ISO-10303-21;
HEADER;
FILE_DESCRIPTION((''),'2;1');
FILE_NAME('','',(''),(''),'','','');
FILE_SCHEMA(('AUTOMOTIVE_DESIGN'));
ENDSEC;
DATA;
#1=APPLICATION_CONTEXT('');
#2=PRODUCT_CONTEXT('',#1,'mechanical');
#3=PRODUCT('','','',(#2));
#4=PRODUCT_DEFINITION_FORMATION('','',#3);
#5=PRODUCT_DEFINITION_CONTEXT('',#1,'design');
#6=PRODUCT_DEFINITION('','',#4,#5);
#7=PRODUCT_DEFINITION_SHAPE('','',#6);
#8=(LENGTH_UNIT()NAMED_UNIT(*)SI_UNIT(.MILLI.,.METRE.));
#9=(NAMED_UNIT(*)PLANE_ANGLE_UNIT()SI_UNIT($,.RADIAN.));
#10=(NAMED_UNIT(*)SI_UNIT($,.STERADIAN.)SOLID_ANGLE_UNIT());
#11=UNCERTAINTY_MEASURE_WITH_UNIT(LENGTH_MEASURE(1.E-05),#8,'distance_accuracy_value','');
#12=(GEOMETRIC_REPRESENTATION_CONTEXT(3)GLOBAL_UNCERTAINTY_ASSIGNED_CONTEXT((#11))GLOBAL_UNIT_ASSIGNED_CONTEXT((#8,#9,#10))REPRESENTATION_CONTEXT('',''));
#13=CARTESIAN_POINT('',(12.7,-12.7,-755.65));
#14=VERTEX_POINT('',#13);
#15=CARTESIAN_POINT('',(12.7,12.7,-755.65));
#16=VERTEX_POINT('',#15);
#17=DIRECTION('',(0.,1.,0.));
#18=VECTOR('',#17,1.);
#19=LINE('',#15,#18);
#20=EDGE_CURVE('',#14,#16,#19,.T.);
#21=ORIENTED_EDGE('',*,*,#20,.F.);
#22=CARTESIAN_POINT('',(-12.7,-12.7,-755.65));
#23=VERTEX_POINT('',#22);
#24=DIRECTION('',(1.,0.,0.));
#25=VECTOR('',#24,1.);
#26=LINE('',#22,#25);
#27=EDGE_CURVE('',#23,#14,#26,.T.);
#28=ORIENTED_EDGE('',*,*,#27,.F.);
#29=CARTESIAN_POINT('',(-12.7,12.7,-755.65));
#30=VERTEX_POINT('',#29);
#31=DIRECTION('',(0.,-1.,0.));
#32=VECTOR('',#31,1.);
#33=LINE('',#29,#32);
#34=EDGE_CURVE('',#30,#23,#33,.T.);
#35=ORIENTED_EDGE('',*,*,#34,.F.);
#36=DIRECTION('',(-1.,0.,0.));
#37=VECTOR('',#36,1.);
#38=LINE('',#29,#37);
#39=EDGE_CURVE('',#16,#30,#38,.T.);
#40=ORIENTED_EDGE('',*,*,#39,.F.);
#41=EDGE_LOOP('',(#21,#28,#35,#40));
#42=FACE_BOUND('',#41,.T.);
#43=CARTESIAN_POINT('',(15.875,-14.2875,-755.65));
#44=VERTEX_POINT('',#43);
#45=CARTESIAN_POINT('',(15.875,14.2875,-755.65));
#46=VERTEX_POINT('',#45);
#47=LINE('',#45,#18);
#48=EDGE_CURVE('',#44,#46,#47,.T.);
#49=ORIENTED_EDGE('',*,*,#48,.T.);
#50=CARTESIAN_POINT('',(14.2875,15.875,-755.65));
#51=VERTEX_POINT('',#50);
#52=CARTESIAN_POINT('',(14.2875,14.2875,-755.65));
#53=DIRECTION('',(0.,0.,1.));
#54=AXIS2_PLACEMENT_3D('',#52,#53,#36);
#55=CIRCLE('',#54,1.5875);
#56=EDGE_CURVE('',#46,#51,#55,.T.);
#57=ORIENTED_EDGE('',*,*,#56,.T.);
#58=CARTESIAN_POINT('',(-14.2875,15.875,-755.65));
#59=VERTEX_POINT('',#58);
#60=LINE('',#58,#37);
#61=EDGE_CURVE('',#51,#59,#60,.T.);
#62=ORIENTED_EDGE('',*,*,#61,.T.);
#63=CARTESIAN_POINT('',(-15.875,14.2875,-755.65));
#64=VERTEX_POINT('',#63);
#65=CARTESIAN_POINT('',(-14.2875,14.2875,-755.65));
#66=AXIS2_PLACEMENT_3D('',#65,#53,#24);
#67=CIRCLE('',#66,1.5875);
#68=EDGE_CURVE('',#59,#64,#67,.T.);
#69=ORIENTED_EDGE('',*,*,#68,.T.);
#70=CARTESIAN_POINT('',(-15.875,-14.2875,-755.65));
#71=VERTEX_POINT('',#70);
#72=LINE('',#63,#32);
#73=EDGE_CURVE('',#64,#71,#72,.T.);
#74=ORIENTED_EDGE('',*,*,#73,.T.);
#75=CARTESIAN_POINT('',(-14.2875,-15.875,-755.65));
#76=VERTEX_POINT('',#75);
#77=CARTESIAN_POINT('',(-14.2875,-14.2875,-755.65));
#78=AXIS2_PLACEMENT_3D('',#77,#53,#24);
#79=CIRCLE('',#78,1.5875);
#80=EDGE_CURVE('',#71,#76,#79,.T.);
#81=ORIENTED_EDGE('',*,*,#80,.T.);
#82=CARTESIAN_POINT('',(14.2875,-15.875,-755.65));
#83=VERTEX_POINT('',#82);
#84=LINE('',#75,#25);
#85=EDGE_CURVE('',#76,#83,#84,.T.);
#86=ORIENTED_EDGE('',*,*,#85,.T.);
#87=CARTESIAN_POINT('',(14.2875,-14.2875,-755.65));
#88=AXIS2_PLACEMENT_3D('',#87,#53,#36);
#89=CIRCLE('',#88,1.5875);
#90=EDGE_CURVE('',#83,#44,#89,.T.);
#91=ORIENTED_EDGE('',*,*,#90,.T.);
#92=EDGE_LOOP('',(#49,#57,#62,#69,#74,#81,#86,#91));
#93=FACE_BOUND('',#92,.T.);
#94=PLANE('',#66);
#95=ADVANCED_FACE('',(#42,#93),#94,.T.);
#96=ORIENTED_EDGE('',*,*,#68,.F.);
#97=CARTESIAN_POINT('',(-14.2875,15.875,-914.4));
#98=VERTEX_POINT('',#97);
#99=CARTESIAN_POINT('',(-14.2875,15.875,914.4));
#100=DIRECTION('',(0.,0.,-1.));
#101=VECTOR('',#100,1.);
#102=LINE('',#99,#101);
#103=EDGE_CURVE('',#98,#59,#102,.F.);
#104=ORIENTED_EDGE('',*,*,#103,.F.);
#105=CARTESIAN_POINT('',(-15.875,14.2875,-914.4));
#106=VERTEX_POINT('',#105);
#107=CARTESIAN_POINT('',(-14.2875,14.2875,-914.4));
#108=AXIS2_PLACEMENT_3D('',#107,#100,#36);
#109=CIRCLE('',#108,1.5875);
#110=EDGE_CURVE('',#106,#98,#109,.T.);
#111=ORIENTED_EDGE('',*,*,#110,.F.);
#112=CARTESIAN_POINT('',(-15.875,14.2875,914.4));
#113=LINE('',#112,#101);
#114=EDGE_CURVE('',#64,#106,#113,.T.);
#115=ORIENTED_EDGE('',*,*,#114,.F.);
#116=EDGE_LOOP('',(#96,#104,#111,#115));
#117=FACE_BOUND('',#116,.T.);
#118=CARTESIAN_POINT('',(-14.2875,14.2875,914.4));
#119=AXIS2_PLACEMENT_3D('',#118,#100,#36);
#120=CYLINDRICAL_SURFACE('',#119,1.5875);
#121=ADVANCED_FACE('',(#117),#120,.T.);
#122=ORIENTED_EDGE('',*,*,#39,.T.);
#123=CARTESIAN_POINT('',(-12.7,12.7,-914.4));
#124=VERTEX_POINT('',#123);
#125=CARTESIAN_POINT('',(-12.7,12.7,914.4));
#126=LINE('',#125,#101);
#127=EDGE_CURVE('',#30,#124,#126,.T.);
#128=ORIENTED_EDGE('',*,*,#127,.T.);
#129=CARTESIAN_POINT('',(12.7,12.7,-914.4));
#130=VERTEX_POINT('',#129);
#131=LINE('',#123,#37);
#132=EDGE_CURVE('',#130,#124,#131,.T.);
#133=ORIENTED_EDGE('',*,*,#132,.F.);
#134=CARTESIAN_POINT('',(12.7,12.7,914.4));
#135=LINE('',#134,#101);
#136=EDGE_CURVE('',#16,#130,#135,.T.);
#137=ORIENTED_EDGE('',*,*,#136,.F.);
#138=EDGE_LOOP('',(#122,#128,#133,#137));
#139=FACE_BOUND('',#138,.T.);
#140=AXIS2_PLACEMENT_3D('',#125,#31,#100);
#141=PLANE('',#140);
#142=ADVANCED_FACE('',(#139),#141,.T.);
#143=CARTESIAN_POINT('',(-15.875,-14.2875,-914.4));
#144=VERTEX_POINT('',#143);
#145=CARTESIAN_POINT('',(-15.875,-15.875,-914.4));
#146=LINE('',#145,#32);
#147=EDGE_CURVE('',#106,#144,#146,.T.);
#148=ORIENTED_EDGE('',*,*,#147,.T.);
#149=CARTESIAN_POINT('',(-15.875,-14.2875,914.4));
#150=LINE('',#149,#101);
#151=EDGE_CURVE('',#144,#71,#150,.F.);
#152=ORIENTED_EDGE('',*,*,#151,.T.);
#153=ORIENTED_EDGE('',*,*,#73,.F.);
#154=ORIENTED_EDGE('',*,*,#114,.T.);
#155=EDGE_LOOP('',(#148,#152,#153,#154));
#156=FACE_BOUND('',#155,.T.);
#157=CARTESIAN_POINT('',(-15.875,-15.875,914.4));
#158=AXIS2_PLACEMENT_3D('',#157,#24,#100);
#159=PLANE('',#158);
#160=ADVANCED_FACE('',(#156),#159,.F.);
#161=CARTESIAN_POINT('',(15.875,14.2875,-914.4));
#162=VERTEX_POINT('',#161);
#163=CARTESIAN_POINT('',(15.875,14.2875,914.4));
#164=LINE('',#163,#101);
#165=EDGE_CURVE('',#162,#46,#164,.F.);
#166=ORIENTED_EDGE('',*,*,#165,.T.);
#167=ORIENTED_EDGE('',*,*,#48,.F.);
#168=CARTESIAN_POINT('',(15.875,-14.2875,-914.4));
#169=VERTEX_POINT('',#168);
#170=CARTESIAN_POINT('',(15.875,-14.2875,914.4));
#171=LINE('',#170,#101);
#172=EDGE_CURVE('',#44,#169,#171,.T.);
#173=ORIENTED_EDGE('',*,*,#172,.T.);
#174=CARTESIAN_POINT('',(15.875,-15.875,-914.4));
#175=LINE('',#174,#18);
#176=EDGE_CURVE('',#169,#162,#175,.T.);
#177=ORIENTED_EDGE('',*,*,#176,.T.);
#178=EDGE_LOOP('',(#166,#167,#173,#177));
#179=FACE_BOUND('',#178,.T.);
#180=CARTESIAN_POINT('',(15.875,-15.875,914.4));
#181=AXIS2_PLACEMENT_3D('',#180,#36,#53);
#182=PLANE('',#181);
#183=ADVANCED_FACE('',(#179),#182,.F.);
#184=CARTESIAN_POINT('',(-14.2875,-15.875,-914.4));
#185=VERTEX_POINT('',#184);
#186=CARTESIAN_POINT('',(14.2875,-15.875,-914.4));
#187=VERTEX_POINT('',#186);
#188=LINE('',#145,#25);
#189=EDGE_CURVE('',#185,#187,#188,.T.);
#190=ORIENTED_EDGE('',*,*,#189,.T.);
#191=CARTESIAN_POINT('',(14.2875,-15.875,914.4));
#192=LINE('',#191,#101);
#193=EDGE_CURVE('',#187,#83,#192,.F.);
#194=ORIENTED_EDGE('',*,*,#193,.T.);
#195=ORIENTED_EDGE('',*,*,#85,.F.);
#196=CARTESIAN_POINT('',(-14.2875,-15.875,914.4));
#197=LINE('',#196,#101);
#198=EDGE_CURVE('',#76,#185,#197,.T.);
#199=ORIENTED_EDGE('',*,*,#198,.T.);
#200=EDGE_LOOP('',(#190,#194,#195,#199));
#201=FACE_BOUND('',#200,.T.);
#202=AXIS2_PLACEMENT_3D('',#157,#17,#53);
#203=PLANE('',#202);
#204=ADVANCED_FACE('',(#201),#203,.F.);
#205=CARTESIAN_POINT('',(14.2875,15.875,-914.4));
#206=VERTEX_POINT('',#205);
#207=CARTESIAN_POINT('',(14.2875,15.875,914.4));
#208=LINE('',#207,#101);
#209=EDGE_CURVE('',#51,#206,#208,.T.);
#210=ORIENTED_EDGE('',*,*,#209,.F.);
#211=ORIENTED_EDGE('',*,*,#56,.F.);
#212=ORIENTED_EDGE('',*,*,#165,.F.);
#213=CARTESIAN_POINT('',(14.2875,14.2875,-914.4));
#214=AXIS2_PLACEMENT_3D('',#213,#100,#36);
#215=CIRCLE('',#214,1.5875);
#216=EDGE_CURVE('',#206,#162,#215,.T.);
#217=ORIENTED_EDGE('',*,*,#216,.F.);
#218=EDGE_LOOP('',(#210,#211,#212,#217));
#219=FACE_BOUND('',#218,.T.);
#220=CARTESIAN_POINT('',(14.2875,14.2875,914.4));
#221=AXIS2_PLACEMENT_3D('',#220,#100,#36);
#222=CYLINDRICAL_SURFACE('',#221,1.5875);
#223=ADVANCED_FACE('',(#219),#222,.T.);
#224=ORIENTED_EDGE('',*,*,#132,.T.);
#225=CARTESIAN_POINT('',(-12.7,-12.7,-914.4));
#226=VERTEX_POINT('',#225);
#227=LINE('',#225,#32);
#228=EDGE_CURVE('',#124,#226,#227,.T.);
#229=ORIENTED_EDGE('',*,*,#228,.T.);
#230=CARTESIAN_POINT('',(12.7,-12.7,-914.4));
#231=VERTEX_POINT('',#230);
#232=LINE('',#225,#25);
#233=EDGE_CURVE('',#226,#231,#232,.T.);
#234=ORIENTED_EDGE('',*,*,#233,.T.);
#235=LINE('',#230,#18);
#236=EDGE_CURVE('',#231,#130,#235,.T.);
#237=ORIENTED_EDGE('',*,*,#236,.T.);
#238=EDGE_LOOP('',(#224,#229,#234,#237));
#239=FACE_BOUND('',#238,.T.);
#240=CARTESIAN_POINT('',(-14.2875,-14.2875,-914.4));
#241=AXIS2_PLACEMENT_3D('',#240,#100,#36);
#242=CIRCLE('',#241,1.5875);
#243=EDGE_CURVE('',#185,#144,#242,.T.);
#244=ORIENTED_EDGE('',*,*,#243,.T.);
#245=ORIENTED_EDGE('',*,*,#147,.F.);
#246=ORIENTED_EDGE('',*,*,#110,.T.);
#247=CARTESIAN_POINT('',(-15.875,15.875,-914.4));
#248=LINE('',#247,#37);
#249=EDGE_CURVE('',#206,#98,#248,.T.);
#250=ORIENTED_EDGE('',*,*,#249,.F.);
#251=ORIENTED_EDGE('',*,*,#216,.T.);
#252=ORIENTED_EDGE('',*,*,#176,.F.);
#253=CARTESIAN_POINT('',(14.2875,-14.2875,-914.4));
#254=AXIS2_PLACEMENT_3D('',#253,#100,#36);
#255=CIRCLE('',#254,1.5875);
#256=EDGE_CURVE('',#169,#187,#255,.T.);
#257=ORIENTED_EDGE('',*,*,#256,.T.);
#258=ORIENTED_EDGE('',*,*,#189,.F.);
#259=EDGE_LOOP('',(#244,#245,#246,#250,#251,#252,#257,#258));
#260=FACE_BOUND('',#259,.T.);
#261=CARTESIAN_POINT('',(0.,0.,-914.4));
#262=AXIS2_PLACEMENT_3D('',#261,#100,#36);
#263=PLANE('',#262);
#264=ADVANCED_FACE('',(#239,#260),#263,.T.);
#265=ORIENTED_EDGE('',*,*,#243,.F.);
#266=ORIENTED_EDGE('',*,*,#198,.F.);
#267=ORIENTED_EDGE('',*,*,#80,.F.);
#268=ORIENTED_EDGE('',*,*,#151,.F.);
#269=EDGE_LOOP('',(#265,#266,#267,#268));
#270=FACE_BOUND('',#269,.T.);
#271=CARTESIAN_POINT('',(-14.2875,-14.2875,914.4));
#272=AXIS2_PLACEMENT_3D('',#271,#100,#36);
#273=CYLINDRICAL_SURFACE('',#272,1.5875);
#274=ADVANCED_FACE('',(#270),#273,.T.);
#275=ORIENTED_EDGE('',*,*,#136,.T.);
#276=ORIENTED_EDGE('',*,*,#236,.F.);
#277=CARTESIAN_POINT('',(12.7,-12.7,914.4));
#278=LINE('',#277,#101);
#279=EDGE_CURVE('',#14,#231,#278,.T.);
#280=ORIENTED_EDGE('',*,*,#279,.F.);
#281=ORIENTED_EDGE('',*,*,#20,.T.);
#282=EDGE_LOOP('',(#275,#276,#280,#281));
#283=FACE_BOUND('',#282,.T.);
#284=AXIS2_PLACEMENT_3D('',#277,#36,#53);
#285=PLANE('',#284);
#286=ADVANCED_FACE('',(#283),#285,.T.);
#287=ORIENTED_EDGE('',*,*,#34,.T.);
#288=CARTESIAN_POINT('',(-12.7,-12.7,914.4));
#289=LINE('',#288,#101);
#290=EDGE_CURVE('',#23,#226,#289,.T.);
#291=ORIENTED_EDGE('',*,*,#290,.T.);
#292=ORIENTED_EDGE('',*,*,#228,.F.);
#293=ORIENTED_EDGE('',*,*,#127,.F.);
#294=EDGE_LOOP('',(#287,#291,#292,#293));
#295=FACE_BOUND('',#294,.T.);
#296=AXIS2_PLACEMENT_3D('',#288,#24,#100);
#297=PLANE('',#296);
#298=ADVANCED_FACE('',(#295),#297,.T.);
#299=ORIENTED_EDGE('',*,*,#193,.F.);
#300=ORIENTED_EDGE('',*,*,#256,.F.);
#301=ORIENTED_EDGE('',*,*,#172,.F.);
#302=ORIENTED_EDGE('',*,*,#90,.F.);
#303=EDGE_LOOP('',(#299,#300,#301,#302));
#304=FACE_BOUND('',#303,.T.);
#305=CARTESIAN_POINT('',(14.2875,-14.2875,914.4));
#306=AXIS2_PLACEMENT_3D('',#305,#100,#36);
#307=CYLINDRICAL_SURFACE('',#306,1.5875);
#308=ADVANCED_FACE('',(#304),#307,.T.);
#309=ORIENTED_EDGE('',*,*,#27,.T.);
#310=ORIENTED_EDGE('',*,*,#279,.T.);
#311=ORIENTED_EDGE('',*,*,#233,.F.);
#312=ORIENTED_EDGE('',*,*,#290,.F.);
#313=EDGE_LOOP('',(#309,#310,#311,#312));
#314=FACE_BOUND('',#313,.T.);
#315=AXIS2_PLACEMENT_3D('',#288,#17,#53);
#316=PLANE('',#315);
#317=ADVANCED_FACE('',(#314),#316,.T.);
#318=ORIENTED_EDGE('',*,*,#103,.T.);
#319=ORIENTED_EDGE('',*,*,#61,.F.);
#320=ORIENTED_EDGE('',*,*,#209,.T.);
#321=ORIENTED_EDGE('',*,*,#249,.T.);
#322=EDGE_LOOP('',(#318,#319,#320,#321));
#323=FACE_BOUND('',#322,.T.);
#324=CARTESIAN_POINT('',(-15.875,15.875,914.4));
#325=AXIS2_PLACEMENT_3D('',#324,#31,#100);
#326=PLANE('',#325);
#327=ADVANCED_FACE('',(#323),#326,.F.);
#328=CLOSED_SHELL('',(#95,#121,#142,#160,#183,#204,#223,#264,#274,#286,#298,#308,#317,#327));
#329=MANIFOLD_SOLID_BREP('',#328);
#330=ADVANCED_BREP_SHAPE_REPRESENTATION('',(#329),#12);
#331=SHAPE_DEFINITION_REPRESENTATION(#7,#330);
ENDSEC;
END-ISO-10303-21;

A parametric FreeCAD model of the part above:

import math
import FreeCAD as App
import Part
import Sketcher
Q = App.Units.Quantity


def edges_at(feature, points):
    """Names of the edges that pass closest to the given points."""
    edges = feature.Shape.Edges
    near = lambda p: min(range(len(edges)), key=lambda i: edges[i].distToShape(Part.Vertex(*p))[0])
    return sorted({f"Edge{near(p) + 1}" for p in points})

doc = App.newDocument("Part")
body = doc.addObject("PartDesign::Body", "Body")

sketch1 = body.newObject("Sketcher::SketchObject", "Sketch")
sketch1.AttachmentSupport = (doc.getObject("XY_Plane"), [""])
sketch1.MapMode = "FlatFace"
sketch1.addGeometry(Part.LineSegment(App.Vector(-16, 16, 0), App.Vector(-16, -16, 0)), False)
sketch1.addGeometry(Part.LineSegment(App.Vector(-16, -16, 0), App.Vector(16, -16, 0)), False)
sketch1.addGeometry(Part.LineSegment(App.Vector(16, -16, 0), App.Vector(16, 16, 0)), False)
sketch1.addGeometry(Part.LineSegment(App.Vector(16, 16, 0), App.Vector(-16, 16, 0)), False)
sketch1.addGeometry(Part.LineSegment(App.Vector(13, -13, 0), App.Vector(-13, -13, 0)), False)
sketch1.addGeometry(Part.LineSegment(App.Vector(-13, -13, 0), App.Vector(-13, 13, 0)), False)
sketch1.addGeometry(Part.LineSegment(App.Vector(-13, 13, 0), App.Vector(13, 13, 0)), False)
sketch1.addGeometry(Part.LineSegment(App.Vector(13, 13, 0), App.Vector(13, -13, 0)), False)
sketch1.addConstraint(Sketcher.Constraint("Coincident", 0, 2, 1, 1))
sketch1.addConstraint(Sketcher.Constraint("Coincident", 1, 2, 2, 1))
sketch1.addConstraint(Sketcher.Constraint("Coincident", 2, 2, 3, 1))
sketch1.addConstraint(Sketcher.Constraint("Coincident", 3, 2, 0, 1))
sketch1.addConstraint(Sketcher.Constraint("Coincident", 4, 2, 5, 1))
sketch1.addConstraint(Sketcher.Constraint("Coincident", 5, 2, 6, 1))
sketch1.addConstraint(Sketcher.Constraint("Coincident", 6, 2, 7, 1))
sketch1.addConstraint(Sketcher.Constraint("Coincident", 7, 2, 4, 1))
sketch1.addConstraint(Sketcher.Constraint("Vertical", 0))
sketch1.addConstraint(Sketcher.Constraint("Horizontal", 1))
sketch1.addConstraint(Sketcher.Constraint("Vertical", 2))
sketch1.addConstraint(Sketcher.Constraint("Horizontal", 3))
sketch1.addConstraint(Sketcher.Constraint("Horizontal", 4))
sketch1.addConstraint(Sketcher.Constraint("Vertical", 5))
sketch1.addConstraint(Sketcher.Constraint("Horizontal", 6))
sketch1.addConstraint(Sketcher.Constraint("Vertical", 7))
sketch1.addConstraint(Sketcher.Constraint("Symmetric", 0, 2, 2, 2, -1, 1))
sketch1.addConstraint(Sketcher.Constraint("Symmetric", 4, 2, 6, 2, -1, 1))
sketch1.addConstraint(Sketcher.Constraint("Equal", 3, 0))
sketch1.addConstraint(Sketcher.Constraint("Equal", 6, 5))
sketch1.addConstraint(Sketcher.Constraint("DistanceX", 4, 2, 4, 1, Q("1 in")))
sketch1.addConstraint(Sketcher.Constraint("DistanceX", 1, 1, 1, 2, Q("1.25 in")))
pad1 = body.newObject("PartDesign::Pad", "Pad")
pad1.Profile = sketch1
pad1.Type = "TwoLengths"
pad1.Length = Q("36 in")
pad1.Length2 = Q("36 in")
doc.recompute()

fillet = body.newObject("PartDesign::Fillet", "Fillet")
fillet.Base = (pad1, edges_at(pad1, [
    (15.875, -15.875, 0),
    (-15.875, -15.875, 0),
    (-15.875, 15.875, 0),
    (15.875, 15.875, 0),
]))
fillet.Radius = Q("0.0625 in")

sketch2 = body.newObject("Sketcher::SketchObject", "Sketch001")
sketch2.AttachmentSupport = (doc.getObject("XY_Plane"), [""])
sketch2.MapMode = "FlatFace"
sketch2.AttachmentOffset = App.Placement(App.Vector(0, 0, 36 * 25.4), App.Rotation())
sketch2.addGeometry(Part.LineSegment(App.Vector(14.3, 15.9, 0), App.Vector(-14.3, 15.9, 0)), False)
sketch2.addGeometry(Part.ArcOfCircle(Part.Circle(App.Vector(-14.3, 14.3, 0), App.Vector(0, 0, 1), 1.6), math.radians(90), math.radians(180)), False)
sketch2.addGeometry(Part.LineSegment(App.Vector(-15.9, 14.3, 0), App.Vector(-15.9, -14.3, 0)), False)
sketch2.addGeometry(Part.ArcOfCircle(Part.Circle(App.Vector(-14.3, -14.3, 0), App.Vector(0, 0, 1), 1.6), math.radians(180), math.radians(270)), False)
sketch2.addGeometry(Part.LineSegment(App.Vector(-14.3, -15.9, 0), App.Vector(14.3, -15.9, 0)), False)
sketch2.addGeometry(Part.ArcOfCircle(Part.Circle(App.Vector(14.3, -14.3, 0), App.Vector(0, 0, 1), 1.6), math.radians(-90), math.radians(0)), False)
sketch2.addGeometry(Part.LineSegment(App.Vector(15.9, -14.3, 0), App.Vector(15.9, 14.3, 0)), False)
sketch2.addGeometry(Part.ArcOfCircle(Part.Circle(App.Vector(14.3, 14.3, 0), App.Vector(0, 0, 1), 1.6), math.radians(0), math.radians(90)), False)
sketch2.addGeometry(Part.LineSegment(App.Vector(-12.7, -12.7, 0), App.Vector(-12.7, 12.7, 0)), False)
sketch2.addGeometry(Part.LineSegment(App.Vector(-12.7, 12.7, 0), App.Vector(12.7, 12.7, 0)), False)
sketch2.addGeometry(Part.LineSegment(App.Vector(12.7, 12.7, 0), App.Vector(12.7, -12.7, 0)), False)
sketch2.addGeometry(Part.LineSegment(App.Vector(12.7, -12.7, 0), App.Vector(-12.7, -12.7, 0)), False)
sketch2.addConstraint(Sketcher.Constraint("Tangent", 0, 2, 1, 1))
sketch2.addConstraint(Sketcher.Constraint("Tangent", 1, 2, 2, 1))
sketch2.addConstraint(Sketcher.Constraint("Tangent", 2, 2, 3, 1))
sketch2.addConstraint(Sketcher.Constraint("Tangent", 3, 2, 4, 1))
sketch2.addConstraint(Sketcher.Constraint("Tangent", 4, 2, 5, 1))
sketch2.addConstraint(Sketcher.Constraint("Tangent", 5, 2, 6, 1))
sketch2.addConstraint(Sketcher.Constraint("Tangent", 6, 2, 7, 1))
sketch2.addConstraint(Sketcher.Constraint("Tangent", 7, 2, 0, 1))
sketch2.addConstraint(Sketcher.Constraint("Coincident", 8, 2, 9, 1))
sketch2.addConstraint(Sketcher.Constraint("Coincident", 9, 2, 10, 1))
sketch2.addConstraint(Sketcher.Constraint("Coincident", 10, 2, 11, 1))
sketch2.addConstraint(Sketcher.Constraint("Coincident", 11, 2, 8, 1))
sketch2.addConstraint(Sketcher.Constraint("Horizontal", 0))
sketch2.addConstraint(Sketcher.Constraint("Vertical", 2))
sketch2.addConstraint(Sketcher.Constraint("Horizontal", 4))
sketch2.addConstraint(Sketcher.Constraint("Vertical", 6))
sketch2.addConstraint(Sketcher.Constraint("Vertical", 8))
sketch2.addConstraint(Sketcher.Constraint("Horizontal", 9))
sketch2.addConstraint(Sketcher.Constraint("Vertical", 10))
sketch2.addConstraint(Sketcher.Constraint("Horizontal", 11))
sketch2.addConstraint(Sketcher.Constraint("Equal", 1, 3))
sketch2.addConstraint(Sketcher.Constraint("Equal", 3, 5))
sketch2.addConstraint(Sketcher.Constraint("Equal", 5, 7))
sketch2.addConstraint(Sketcher.Constraint("Symmetric", 1, 3, 5, 3, -1, 1))
sketch2.addConstraint(Sketcher.Constraint("Symmetric", 8, 2, 10, 2, -1, 1))
sketch2.addConstraint(Sketcher.Constraint("Equal", 4, 2))
sketch2.addConstraint(Sketcher.Constraint("Equal", 11, 8))
sketch2.addConstraint(Sketcher.Constraint("DistanceX", 9, 1, 9, 2, Q("1 in")))
sketch2.addConstraint(Sketcher.Constraint("Radius", 1, Q("0.0625 in")))
sketch2.addConstraint(Sketcher.Constraint("DistanceX", 0, 2, 0, 1, Q("1.125 in")))
pocket1 = body.newObject("PartDesign::Pocket", "Pocket")
pocket1.Profile = sketch2
pocket1.Length = Q("65.75 in")

doc.recompute()
